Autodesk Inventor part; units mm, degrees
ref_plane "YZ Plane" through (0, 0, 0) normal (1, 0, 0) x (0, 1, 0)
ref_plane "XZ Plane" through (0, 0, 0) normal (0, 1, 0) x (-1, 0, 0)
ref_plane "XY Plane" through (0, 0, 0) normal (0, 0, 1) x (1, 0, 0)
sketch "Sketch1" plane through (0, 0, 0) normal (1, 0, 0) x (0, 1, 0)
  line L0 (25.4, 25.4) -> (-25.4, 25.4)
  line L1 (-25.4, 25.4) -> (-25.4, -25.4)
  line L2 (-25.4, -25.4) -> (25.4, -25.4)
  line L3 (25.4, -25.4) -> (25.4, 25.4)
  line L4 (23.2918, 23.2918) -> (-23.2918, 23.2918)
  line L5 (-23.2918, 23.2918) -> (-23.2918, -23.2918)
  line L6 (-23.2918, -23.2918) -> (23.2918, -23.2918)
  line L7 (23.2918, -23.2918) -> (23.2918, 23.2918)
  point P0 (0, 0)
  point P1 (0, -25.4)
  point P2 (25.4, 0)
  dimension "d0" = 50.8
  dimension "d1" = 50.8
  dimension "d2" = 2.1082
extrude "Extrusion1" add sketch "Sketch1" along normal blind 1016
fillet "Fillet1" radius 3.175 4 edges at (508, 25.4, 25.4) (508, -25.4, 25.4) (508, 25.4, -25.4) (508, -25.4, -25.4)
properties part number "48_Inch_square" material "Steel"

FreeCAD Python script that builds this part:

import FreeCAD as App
import Part
import Sketcher
from FreeCAD import Vector
Q = App.Units.Quantity


def edges_at(feature, points):
    """Names of the edges that pass closest to the given points."""
    edges = feature.Shape.Edges
    near = lambda p: min(range(len(edges)), key=lambda i: edges[i].distToShape(Part.Vertex(*p))[0])
    return sorted({f"Edge{near(p) + 1}" for p in points})


def add_polygon(sketch, points):
    """Adds a closed chain of lines whose ends are joined by coincident constraints."""
    first, n = sketch.GeometryCount, len(points)
    for a, b in zip(points, points[1:] + points[:1]):
        sketch.addGeometry(Part.LineSegment(App.Vector(*a, 0), App.Vector(*b, 0)), False)
    for i in range(n):
        sketch.addConstraint(Sketcher.Constraint("Coincident", first + i, 2, first + (i + 1) % n, 1))

doc = App.newDocument("Part")
body = doc.addObject("PartDesign::Body", "Body")

# Sketch on YZ plane
sketch1 = doc.addObject("Sketcher::SketchObject", "Sketch")
body.addObject(sketch1)
sketch1.AttachmentSupport = (doc.YZ_Plane, [""])
sketch1.MapMode = "FlatFace"
add_polygon(sketch1, [(25, -25), (25, 25), (-25, 25), (-25, -25)])  # lines 0-3
add_polygon(sketch1, [(-23, 23), (23, 23), (23, -23), (-23, -23)])  # lines 4-7
sketch1.addConstraint(Sketcher.Constraint("Vertical", 0))
sketch1.addConstraint(Sketcher.Constraint("Horizontal", 1))
sketch1.addConstraint(Sketcher.Constraint("Vertical", 2))
sketch1.addConstraint(Sketcher.Constraint("Horizontal", 3))
sketch1.addConstraint(Sketcher.Constraint("Horizontal", 4))
sketch1.addConstraint(Sketcher.Constraint("Vertical", 5))
sketch1.addConstraint(Sketcher.Constraint("Horizontal", 6))
sketch1.addConstraint(Sketcher.Constraint("Vertical", 7))
sketch1.addConstraint(Sketcher.Constraint("Symmetric", 0, 2, 2, 2, -1, 1))
sketch1.addConstraint(Sketcher.Constraint("Symmetric", 4, 2, 6, 2, -1, 1))
sketch1.addConstraint(Sketcher.Constraint("Equal", 3, 0))
sketch1.addConstraint(Sketcher.Constraint("Equal", 6, 5))
sketch1.addConstraint(Sketcher.Constraint("DistanceX", 1, 2, 1, 1, Q("2 in")))
sketch1.addConstraint(Sketcher.Constraint("DistanceX", 4, 2, 0, 2, Q("0.083 in")))
pad1 = doc.addObject("PartDesign::Pad", "Pad")
body.addObject(pad1)
pad1.Profile = sketch1
pad1.Length = Q("40 in")
doc.recompute()

fillet = doc.addObject("PartDesign::Fillet", "Fillet")
body.addObject(fillet)
fillet.Base = (pad1, edges_at(pad1, [
    (508, 25.4, 25.4),
    (508, -25.4, 25.4),
    (508, 25.4, -25.4),
    (508, -25.4, -25.4),
]))
fillet.Radius = Q("0.125 in")

doc.recompute()
